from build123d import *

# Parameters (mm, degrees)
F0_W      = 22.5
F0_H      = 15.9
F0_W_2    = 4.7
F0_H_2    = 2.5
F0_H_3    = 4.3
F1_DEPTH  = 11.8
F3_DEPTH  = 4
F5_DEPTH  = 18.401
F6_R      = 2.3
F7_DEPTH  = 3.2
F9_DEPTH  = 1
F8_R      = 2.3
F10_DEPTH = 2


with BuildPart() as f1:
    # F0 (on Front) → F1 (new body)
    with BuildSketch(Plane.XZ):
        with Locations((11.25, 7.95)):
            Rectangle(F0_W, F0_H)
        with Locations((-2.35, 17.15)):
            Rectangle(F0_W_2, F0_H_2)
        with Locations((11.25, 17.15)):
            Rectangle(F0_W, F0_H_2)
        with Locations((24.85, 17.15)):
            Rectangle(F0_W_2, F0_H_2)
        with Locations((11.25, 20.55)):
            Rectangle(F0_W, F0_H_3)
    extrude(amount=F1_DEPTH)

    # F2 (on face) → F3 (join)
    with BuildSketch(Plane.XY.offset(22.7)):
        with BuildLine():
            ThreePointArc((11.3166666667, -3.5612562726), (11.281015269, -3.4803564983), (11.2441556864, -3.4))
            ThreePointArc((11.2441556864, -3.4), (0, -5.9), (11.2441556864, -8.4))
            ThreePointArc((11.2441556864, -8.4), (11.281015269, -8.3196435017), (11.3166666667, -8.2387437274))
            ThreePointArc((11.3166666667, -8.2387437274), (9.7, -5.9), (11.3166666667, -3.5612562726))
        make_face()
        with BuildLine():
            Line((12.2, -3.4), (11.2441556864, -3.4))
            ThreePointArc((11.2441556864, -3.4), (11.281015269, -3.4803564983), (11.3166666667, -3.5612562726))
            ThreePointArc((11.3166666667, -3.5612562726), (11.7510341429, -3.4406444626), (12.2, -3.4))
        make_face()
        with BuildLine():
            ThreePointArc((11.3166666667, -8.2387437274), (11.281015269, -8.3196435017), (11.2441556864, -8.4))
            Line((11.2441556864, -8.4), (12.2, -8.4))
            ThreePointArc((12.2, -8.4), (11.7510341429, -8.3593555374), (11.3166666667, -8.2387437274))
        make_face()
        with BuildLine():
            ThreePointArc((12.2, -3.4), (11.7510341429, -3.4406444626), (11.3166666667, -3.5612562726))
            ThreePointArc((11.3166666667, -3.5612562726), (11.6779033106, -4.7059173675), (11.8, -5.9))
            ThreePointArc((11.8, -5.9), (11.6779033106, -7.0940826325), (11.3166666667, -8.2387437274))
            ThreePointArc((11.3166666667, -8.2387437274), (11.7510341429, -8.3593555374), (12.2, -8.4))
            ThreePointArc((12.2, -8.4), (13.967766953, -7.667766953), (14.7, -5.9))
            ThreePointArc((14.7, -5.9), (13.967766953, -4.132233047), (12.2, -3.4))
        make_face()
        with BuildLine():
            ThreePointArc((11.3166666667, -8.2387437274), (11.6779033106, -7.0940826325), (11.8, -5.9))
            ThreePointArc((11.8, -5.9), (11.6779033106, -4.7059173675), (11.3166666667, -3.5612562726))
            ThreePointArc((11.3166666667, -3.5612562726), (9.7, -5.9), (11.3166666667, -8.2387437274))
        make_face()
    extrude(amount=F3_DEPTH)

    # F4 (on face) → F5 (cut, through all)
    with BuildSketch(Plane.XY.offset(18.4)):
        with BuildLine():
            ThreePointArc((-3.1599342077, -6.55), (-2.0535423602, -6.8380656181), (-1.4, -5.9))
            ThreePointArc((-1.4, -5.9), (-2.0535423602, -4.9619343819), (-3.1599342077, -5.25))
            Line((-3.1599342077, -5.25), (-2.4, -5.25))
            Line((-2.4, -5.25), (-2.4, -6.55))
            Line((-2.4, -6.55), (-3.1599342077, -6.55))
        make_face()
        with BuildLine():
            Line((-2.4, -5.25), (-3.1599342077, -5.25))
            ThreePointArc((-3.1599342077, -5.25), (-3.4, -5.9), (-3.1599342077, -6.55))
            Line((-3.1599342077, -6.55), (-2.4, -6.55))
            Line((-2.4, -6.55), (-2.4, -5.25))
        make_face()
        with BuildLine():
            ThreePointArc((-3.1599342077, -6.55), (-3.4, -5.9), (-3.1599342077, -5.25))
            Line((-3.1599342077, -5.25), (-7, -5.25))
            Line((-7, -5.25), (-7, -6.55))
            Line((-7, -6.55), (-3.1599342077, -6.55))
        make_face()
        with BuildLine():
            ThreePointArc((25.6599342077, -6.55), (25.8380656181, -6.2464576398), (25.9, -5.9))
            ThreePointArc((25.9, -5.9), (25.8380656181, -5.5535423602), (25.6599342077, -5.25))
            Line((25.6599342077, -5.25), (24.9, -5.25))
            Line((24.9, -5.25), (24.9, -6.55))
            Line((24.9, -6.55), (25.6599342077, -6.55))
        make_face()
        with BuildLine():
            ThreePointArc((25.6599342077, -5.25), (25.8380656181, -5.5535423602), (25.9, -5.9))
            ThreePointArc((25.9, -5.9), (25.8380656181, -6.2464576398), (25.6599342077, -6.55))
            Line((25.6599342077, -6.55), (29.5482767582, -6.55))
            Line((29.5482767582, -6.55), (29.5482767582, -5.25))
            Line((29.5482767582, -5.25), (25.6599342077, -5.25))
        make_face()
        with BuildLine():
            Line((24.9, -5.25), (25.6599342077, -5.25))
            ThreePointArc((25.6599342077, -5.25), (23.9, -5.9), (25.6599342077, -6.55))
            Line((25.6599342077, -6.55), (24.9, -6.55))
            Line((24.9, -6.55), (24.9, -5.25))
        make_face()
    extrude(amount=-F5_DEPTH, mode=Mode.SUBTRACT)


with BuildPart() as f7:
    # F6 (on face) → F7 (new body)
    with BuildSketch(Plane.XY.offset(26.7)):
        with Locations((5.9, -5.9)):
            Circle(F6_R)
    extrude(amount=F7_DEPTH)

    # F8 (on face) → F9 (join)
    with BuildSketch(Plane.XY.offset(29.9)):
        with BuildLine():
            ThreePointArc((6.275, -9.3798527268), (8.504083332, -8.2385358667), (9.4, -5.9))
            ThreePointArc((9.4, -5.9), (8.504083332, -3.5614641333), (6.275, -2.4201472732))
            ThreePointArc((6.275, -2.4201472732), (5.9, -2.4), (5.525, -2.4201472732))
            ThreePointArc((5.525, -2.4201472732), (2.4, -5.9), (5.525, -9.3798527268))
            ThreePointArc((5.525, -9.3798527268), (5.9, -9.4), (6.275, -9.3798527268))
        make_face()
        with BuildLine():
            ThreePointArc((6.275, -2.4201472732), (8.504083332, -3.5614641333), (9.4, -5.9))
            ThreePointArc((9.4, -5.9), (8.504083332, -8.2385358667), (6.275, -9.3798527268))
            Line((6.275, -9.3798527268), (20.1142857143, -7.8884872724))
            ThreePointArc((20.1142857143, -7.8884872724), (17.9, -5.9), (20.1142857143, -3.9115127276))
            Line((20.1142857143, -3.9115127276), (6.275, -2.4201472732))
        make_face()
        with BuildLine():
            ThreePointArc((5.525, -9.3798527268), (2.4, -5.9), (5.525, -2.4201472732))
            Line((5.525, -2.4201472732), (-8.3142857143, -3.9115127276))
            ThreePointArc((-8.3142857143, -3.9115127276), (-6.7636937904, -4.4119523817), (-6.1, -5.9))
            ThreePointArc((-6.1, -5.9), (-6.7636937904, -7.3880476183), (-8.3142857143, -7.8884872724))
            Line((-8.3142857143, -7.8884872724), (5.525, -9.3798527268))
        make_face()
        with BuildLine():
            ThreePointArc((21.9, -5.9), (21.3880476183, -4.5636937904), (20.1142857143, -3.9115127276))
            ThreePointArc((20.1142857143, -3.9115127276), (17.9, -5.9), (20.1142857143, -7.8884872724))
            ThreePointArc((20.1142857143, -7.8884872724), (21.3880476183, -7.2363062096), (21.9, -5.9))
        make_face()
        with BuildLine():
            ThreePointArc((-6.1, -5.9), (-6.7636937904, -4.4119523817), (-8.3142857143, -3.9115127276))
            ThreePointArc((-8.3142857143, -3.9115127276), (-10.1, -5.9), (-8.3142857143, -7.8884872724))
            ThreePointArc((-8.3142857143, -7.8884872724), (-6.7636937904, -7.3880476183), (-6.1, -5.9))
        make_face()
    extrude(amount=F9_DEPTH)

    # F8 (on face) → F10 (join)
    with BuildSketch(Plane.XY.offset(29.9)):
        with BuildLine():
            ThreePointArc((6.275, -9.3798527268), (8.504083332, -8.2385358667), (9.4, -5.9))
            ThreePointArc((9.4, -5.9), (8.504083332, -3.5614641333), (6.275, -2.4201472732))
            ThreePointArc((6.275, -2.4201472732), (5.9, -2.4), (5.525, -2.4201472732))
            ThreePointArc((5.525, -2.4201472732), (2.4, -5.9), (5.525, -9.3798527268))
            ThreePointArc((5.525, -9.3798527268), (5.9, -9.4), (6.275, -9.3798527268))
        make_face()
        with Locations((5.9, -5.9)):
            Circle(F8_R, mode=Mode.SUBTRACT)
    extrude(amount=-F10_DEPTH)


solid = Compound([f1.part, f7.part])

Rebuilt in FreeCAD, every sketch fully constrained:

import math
import FreeCAD as App
import Part
import Sketcher

V = App.Vector


def add_polygon(sketch, points):
    """Adds a closed chain of lines whose ends are joined by coincident constraints."""
    first, n = sketch.GeometryCount, len(points)
    for a, b in zip(points, points[1:] + points[:1]):
        sketch.addGeometry(Part.LineSegment(App.Vector(*a, 0), App.Vector(*b, 0)), False)
    for i in range(n):
        sketch.addConstraint(Sketcher.Constraint("Coincident", first + i, 2, first + (i + 1) % n, 1))

doc = App.newDocument("Part")
body = doc.addObject("PartDesign::Body", "Body")

# Sketch on XZ plane
sketch1 = body.newObject("Sketcher::SketchObject", "Sketch")
sketch1.AttachmentSupport = (doc.getObject("XZ_Plane"), [""])
sketch1.MapMode = "FlatFace"
add_polygon(sketch1, [(0, 15.9), (0, 0), (22.5, 0), (22.5, 15.9), (27.2, 15.9), (27.2, 18.4), (22.5, 18.4), (22.5, 22.7), (0, 22.7), (0, 18.4), (-4.7, 18.4), (-4.7, 15.9)])  # lines 0-11
sketch1.addConstraint(Sketcher.Constraint("Vertical", 0))
sketch1.addConstraint(Sketcher.Constraint("Horizontal", 1))
sketch1.addConstraint(Sketcher.Constraint("Vertical", 2))
sketch1.addConstraint(Sketcher.Constraint("Horizontal", 3))
sketch1.addConstraint(Sketcher.Constraint("Vertical", 4))
sketch1.addConstraint(Sketcher.Constraint("Horizontal", 5))
sketch1.addConstraint(Sketcher.Constraint("Vertical", 6))
sketch1.addConstraint(Sketcher.Constraint("Horizontal", 7))
sketch1.addConstraint(Sketcher.Constraint("Vertical", 8))
sketch1.addConstraint(Sketcher.Constraint("Horizontal", 9))
sketch1.addConstraint(Sketcher.Constraint("Vertical", 10))
sketch1.addConstraint(Sketcher.Constraint("Horizontal", 11))
sketch1.addConstraint(Sketcher.Constraint("Coincident", 0, 2, -1, 1))
sketch1.addConstraint(Sketcher.Constraint("PointOnObject", 7, 2, -2))
sketch1.addConstraint(Sketcher.Constraint("Horizontal", 5, 2, 8, 2))
sketch1.addConstraint(Sketcher.Constraint("Horizontal", 3, 2, 10, 2))
sketch1.addConstraint(Sketcher.Constraint("Vertical", 2, 2, 5, 2))
sketch1.addConstraint(Sketcher.Constraint("Equal", 5, 9))
sketch1.addConstraint(Sketcher.Constraint("DistanceX", 1, 1, 1, 2, 22.5))
sketch1.addConstraint(Sketcher.Constraint("DistanceX", 3, 1, 3, 2, 4.7))
sketch1.addConstraint(Sketcher.Constraint("DistanceY", 0, 2, 0, 1, 15.9))
sketch1.addConstraint(Sketcher.Constraint("DistanceY", 4, 1, 4, 2, 2.5))
sketch1.addConstraint(Sketcher.Constraint("DistanceY", 6, 1, 6, 2, 4.3))
pad1 = body.newObject("PartDesign::Pad", "Pad")
pad1.Profile = sketch1
pad1.Length = 11.8

# Sketch on XY plane
sketch2 = body.newObject("Sketcher::SketchObject", "Sketch001")
sketch2.AttachmentSupport = (doc.getObject("XY_Plane"), [""])
sketch2.MapMode = "FlatFace"
sketch2.AttachmentOffset = App.Placement(V(0, 0, 22.7), App.Rotation())
sketch2.addGeometry(Part.ArcOfCircle(Part.Circle(V(5.9, -5.9, 0), V(0, 0, 1), 5.9), math.radians(25), math.radians(335)), False)
sketch2.addGeometry(Part.LineSegment(V(11.2, -8.4, 0), V(12.2, -8.4, 0)), False)
sketch2.addGeometry(Part.ArcOfCircle(Part.Circle(V(12.2, -5.9, 0), V(0, 0, 1), 2.5), math.radians(-90), math.radians(0)), False)
sketch2.addGeometry(Part.ArcOfCircle(Part.Circle(V(12.2, -5.9, 0), V(0, 0, 1), 2.5), math.radians(0), math.radians(90)), False)
sketch2.addGeometry(Part.LineSegment(V(12.2, -3.4, 0), V(11.2, -3.4, 0)), False)
sketch2.addConstraint(Sketcher.Constraint("Coincident", 0, 2, 1, 1))
sketch2.addConstraint(Sketcher.Constraint("Tangent", 1, 2, 2, 1))
sketch2.addConstraint(Sketcher.Constraint("Tangent", 2, 2, 3, 1))
sketch2.addConstraint(Sketcher.Constraint("Tangent", 3, 2, 4, 1))
sketch2.addConstraint(Sketcher.Constraint("Coincident", 4, 2, 0, 1))
sketch2.addConstraint(Sketcher.Constraint("Horizontal", 1))
sketch2.addConstraint(Sketcher.Constraint("Horizontal", 4))
sketch2.addConstraint(Sketcher.Constraint("Equal", 2, 3))
sketch2.addConstraint(Sketcher.Constraint("Horizontal", 0, 3, 2, 3))
sketch2.addConstraint(Sketcher.Constraint("Horizontal", 3, 3, 2, 2))
sketch2.addConstraint(Sketcher.Constraint("Radius", 0, 5.9))
sketch2.addConstraint(Sketcher.Constraint("Radius", 2, 2.5))
sketch2.addConstraint(Sketcher.Constraint("DistanceX", -1, 1, 0, 3, 5.9))
sketch2.addConstraint(Sketcher.Constraint("DistanceY", 0, 3, -1, 1, 5.9))
sketch2.addConstraint(Sketcher.Constraint("DistanceX", -1, 1, 2, 3, 12.2))
pad2 = body.newObject("PartDesign::Pad", "Pad001")
pad2.Profile = sketch2
pad2.Length = 4

# Sketch on XY plane
sketch3 = body.newObject("Sketcher::SketchObject", "Sketch002")
sketch3.AttachmentSupport = (doc.getObject("XY_Plane"), [""])
sketch3.MapMode = "FlatFace"
sketch3.AttachmentOffset = App.Placement(V(0, 0, 18.4), App.Rotation())
sketch3.addGeometry(Part.ArcOfCircle(Part.Circle(V(-2.4, -5.9, 0), V(0, 0, 1), 1), math.radians(-139), math.radians(0)), False)
sketch3.addGeometry(Part.ArcOfCircle(Part.Circle(V(-2.4, -5.9, 0), V(0, 0, 1), 1), math.radians(0), math.radians(139)), False)
sketch3.addGeometry(Part.LineSegment(V(-3.2, -5.2, 0), V(-7, -5.2, 0)), False)
sketch3.addGeometry(Part.LineSegment(V(-7, -5.2, 0), V(-7, -6.5, 0)), False)
sketch3.addGeometry(Part.LineSegment(V(-7, -6.5, 0), V(-3.2, -6.5, 0)), False)
sketch3.addGeometry(Part.LineSegment(V(25.7, -6.5, 0), V(29.5, -6.5, 0)), False)
sketch3.addGeometry(Part.LineSegment(V(29.5, -6.5, 0), V(29.5, -5.2, 0)), False)
sketch3.addGeometry(Part.LineSegment(V(29.5, -5.2, 0), V(25.7, -5.2, 0)), False)
sketch3.addGeometry(Part.ArcOfCircle(Part.Circle(V(24.9, -5.9, 0), V(0, 0, 1), 1), math.radians(41), math.radians(319)), False)
sketch3.addConstraint(Sketcher.Constraint("Tangent", 0, 2, 1, 1))
sketch3.addConstraint(Sketcher.Constraint("Coincident", 1, 2, 2, 1))
sketch3.addConstraint(Sketcher.Constraint("Coincident", 2, 2, 3, 1))
sketch3.addConstraint(Sketcher.Constraint("Coincident", 3, 2, 4, 1))
sketch3.addConstraint(Sketcher.Constraint("Coincident", 4, 2, 0, 1))
sketch3.addConstraint(Sketcher.Constraint("Coincident", 5, 2, 6, 1))
sketch3.addConstraint(Sketcher.Constraint("Coincident", 6, 2, 7, 1))
sketch3.addConstraint(Sketcher.Constraint("Coincident", 7, 2, 8, 1))
sketch3.addConstraint(Sketcher.Constraint("Coincident", 8, 2, 5, 1))
sketch3.addConstraint(Sketcher.Constraint("Horizontal", 2))
sketch3.addConstraint(Sketcher.Constraint("Vertical", 3))
sketch3.addConstraint(Sketcher.Constraint("Horizontal", 4))
sketch3.addConstraint(Sketcher.Constraint("Horizontal", 5))
sketch3.addConstraint(Sketcher.Constraint("Vertical", 6))
sketch3.addConstraint(Sketcher.Constraint("Horizontal", 7))
sketch3.addConstraint(Sketcher.Constraint("Equal", 0, 1))
sketch3.addConstraint(Sketcher.Constraint("Equal", 1, 8))
sketch3.addConstraint(Sketcher.Constraint("Horizontal", 1, 3, 8, 3))
sketch3.addConstraint(Sketcher.Constraint("Horizontal", 8, 3, 0, 2))
sketch3.addConstraint(Sketcher.Constraint("Horizontal", 4, 2, 5, 2))
sketch3.addConstraint(Sketcher.Constraint("Horizontal", 2, 2, 6, 2))
sketch3.addConstraint(Sketcher.Constraint("Vertical", 1, 2, 4, 2))
sketch3.addConstraint(Sketcher.Constraint("Radius", 0, 1.0))
sketch3.addConstraint(Sketcher.Constraint("DistanceY", 3, 2, 3, 1, 1.3))
sketch3.addConstraint(Sketcher.Constraint("DistanceX", 2, 2, -1, 1, 7.0))
sketch3.addConstraint(Sketcher.Constraint("DistanceX", 0, 3, -1, 1, 2.4))
sketch3.addConstraint(Sketcher.Constraint("DistanceY", 0, 3, -1, 1, 5.9))
sketch3.addConstraint(Sketcher.Constraint("DistanceX", -1, 1, 8, 3, 24.9))
sketch3.addConstraint(Sketcher.Constraint("DistanceX", 5, 1, 5, 2, 3.888343))
pocket1 = body.newObject("PartDesign::Pocket", "Pocket")
pocket1.Profile = sketch3
pocket1.Type = "ThroughAll"
body2 = doc.addObject("PartDesign::Body", "Body001")

# Sketch on XY plane
sketch4 = body2.newObject("Sketcher::SketchObject", "Sketch003")
sketch4.AttachmentSupport = (doc.getObject("XY_Plane001"), [""])
sketch4.MapMode = "FlatFace"
sketch4.AttachmentOffset = App.Placement(V(0, 0, 26.7), App.Rotation())
sketch4.addGeometry(Part.Circle(V(5.9, -5.9, 0), V(0, 0, 1), 2.3), False)
sketch4.addConstraint(Sketcher.Constraint("Diameter", 0, 4.6))
sketch4.addConstraint(Sketcher.Constraint("DistanceX", -1, 1, 0, 3, 5.9))
sketch4.addConstraint(Sketcher.Constraint("DistanceY", 0, 3, -1, 1, 5.9))
pad3 = body2.newObject("PartDesign::Pad", "Pad002")
pad3.Profile = sketch4
pad3.Length = 3.2

# Sketch on XY plane
sketch5 = body2.newObject("Sketcher::SketchObject", "Sketch004")
sketch5.AttachmentSupport = (doc.getObject("XY_Plane001"), [""])
sketch5.MapMode = "FlatFace"
sketch5.AttachmentOffset = App.Placement(V(0, 0, 29.9), App.Rotation())
sketch5.addGeometry(Part.ArcOfCircle(Part.Circle(V(5.9, -5.9, 0), V(0, 0, 1), 3.5), math.radians(83.85), math.radians(96.15)), False)
sketch5.addGeometry(Part.LineSegment(V(5.5, -2.4, 0), V(-8.3, -3.9, 0)), False)
sketch5.addGeometry(Part.ArcOfCircle(Part.Circle(V(-8.1, -5.9, 0), V(0, 0, 1), 2), math.radians(96), math.radians(264)), False)
sketch5.addGeometry(Part.LineSegment(V(-8.3, -7.9, 0), V(5.5, -9.4, 0)), False)
sketch5.addGeometry(Part.ArcOfCircle(Part.Circle(V(5.9, -5.9, 0), V(0, 0, 1), 3.5), math.radians(-96.15), math.radians(-83.85)), False)
sketch5.addGeometry(Part.LineSegment(V(6.3, -9.4, 0), V(20.1, -7.9, 0)), False)
sketch5.addGeometry(Part.ArcOfCircle(Part.Circle(V(19.9, -5.9, 0), V(0, 0, 1), 2), math.radians(-84), math.radians(0)), False)
sketch5.addGeometry(Part.ArcOfCircle(Part.Circle(V(19.9, -5.9, 0), V(0, 0, 1), 2), math.radians(0), math.radians(84)), False)
sketch5.addGeometry(Part.LineSegment(V(20.1, -3.9, 0), V(6.3, -2.4, 0)), False)
sketch5.addConstraint(Sketcher.Constraint("Tangent", 0, 2, 1, 1))
sketch5.addConstraint(Sketcher.Constraint("Tangent", 1, 2, 2, 1))
sketch5.addConstraint(Sketcher.Constraint("Tangent", 2, 2, 3, 1))
sketch5.addConstraint(Sketcher.Constraint("Tangent", 3, 2, 4, 1))
sketch5.addConstraint(Sketcher.Constraint("Tangent", 4, 2, 5, 1))
sketch5.addConstraint(Sketcher.Constraint("Tangent", 5, 2, 6, 1))
sketch5.addConstraint(Sketcher.Constraint("Tangent", 6, 2, 7, 1))
sketch5.addConstraint(Sketcher.Constraint("Tangent", 7, 2, 8, 1))
sketch5.addConstraint(Sketcher.Constraint("Tangent", 8, 2, 0, 1))
sketch5.addConstraint(Sketcher.Constraint("Coincident", 4, 3, 0, 3))
sketch5.addConstraint(Sketcher.Constraint("Equal", 0, 4))
sketch5.addConstraint(Sketcher.Constraint("Equal", 2, 6))
sketch5.addConstraint(Sketcher.Constraint("Equal", 6, 7))
sketch5.addConstraint(Sketcher.Constraint("Parallel", 1, 5))
sketch5.addConstraint(Sketcher.Constraint("Parallel", 3, 8))
sketch5.addConstraint(Sketcher.Constraint("Horizontal", 0, 3, 2, 3))
sketch5.addConstraint(Sketcher.Constraint("Horizontal", 7, 3, 6, 2))
sketch5.addConstraint(Sketcher.Constraint("Radius", 2, 2.0))
sketch5.addConstraint(Sketcher.Constraint("Radius", 0, 3.5))
sketch5.addConstraint(Sketcher.Constraint("DistanceX", 2, 3, 0, 3, 14.0))
sketch5.addConstraint(Sketcher.Constraint("DistanceX", -1, 1, 0, 3, 5.9))
sketch5.addConstraint(Sketcher.Constraint("DistanceY", 0, 3, -1, 1, 5.9))
pad4 = body2.newObject("PartDesign::Pad", "Pad003")
pad4.Profile = sketch5
pad4.Length = 1

# Sketch on XY plane
sketch6 = body2.newObject("Sketcher::SketchObject", "Sketch005")
sketch6.AttachmentSupport = (doc.getObject("XY_Plane001"), [""])
sketch6.MapMode = "FlatFace"
sketch6.AttachmentOffset = App.Placement(V(0, 0, 29.9), App.Rotation())
sketch6.addGeometry(Part.ArcOfCircle(Part.Circle(V(5.9, -5.9, 0), V(0, 0, 1), 3.5), math.radians(-84), math.radians(0)), False)
sketch6.addGeometry(Part.ArcOfCircle(Part.Circle(V(5.9, -5.9, 0), V(0, 0, 1), 3.5), math.radians(0), math.radians(84)), False)
sketch6.addGeometry(Part.ArcOfCircle(Part.Circle(V(5.9, -5.9, 0), V(0, 0, 1), 3.5), math.radians(83.85), math.radians(96.15)), False)
sketch6.addGeometry(Part.ArcOfCircle(Part.Circle(V(5.9, -5.9, 0), V(0, 0, 1), 3.5), math.radians(96), math.radians(264)), False)
sketch6.addGeometry(Part.ArcOfCircle(Part.Circle(V(5.9, -5.9, 0), V(0, 0, 1), 3.5), math.radians(-96.15), math.radians(-83.85)), False)
sketch6.addGeometry(Part.Circle(V(5.9, -5.9, 0), V(0, 0, 1), 2.3), False)
sketch6.addConstraint(Sketcher.Constraint("Tangent", 0, 2, 1, 1))
sketch6.addConstraint(Sketcher.Constraint("Tangent", 1, 2, 2, 1))
sketch6.addConstraint(Sketcher.Constraint("Tangent", 2, 2, 3, 1))
sketch6.addConstraint(Sketcher.Constraint("Tangent", 3, 2, 4, 1))
sketch6.addConstraint(Sketcher.Constraint("Tangent", 4, 2, 0, 1))
sketch6.addConstraint(Sketcher.Constraint("Coincident", 2, 3, 0, 3))
sketch6.addConstraint(Sketcher.Constraint("Coincident", 5, 3, 0, 3))
sketch6.addConstraint(Sketcher.Constraint("Horizontal", 5, 3, 0, 2))
sketch6.addConstraint(Sketcher.Constraint("Horizontal", 1, 2, 2, 2))
sketch6.addConstraint(Sketcher.Constraint("Horizontal", 3, 2, 4, 2))
sketch6.addConstraint(Sketcher.Constraint("Vertical", 2, 2, 3, 2))
sketch6.addConstraint(Sketcher.Constraint("Diameter", 5, 4.6))
sketch6.addConstraint(Sketcher.Constraint("Radius", 0, 3.5))
sketch6.addConstraint(Sketcher.Constraint("DistanceX", -1, 1, 0, 3, 5.9))
sketch6.addConstraint(Sketcher.Constraint("DistanceY", 0, 3, -1, 1, 5.9))
sketch6.addConstraint(Sketcher.Constraint("DistanceX", 2, 2, 1, 2, 0.75))
pad5 = body2.newObject("PartDesign::Pad", "Pad004")
pad5.Profile = sketch6
pad5.Length = 2
pad5.Reversed = True

doc.recompute()
